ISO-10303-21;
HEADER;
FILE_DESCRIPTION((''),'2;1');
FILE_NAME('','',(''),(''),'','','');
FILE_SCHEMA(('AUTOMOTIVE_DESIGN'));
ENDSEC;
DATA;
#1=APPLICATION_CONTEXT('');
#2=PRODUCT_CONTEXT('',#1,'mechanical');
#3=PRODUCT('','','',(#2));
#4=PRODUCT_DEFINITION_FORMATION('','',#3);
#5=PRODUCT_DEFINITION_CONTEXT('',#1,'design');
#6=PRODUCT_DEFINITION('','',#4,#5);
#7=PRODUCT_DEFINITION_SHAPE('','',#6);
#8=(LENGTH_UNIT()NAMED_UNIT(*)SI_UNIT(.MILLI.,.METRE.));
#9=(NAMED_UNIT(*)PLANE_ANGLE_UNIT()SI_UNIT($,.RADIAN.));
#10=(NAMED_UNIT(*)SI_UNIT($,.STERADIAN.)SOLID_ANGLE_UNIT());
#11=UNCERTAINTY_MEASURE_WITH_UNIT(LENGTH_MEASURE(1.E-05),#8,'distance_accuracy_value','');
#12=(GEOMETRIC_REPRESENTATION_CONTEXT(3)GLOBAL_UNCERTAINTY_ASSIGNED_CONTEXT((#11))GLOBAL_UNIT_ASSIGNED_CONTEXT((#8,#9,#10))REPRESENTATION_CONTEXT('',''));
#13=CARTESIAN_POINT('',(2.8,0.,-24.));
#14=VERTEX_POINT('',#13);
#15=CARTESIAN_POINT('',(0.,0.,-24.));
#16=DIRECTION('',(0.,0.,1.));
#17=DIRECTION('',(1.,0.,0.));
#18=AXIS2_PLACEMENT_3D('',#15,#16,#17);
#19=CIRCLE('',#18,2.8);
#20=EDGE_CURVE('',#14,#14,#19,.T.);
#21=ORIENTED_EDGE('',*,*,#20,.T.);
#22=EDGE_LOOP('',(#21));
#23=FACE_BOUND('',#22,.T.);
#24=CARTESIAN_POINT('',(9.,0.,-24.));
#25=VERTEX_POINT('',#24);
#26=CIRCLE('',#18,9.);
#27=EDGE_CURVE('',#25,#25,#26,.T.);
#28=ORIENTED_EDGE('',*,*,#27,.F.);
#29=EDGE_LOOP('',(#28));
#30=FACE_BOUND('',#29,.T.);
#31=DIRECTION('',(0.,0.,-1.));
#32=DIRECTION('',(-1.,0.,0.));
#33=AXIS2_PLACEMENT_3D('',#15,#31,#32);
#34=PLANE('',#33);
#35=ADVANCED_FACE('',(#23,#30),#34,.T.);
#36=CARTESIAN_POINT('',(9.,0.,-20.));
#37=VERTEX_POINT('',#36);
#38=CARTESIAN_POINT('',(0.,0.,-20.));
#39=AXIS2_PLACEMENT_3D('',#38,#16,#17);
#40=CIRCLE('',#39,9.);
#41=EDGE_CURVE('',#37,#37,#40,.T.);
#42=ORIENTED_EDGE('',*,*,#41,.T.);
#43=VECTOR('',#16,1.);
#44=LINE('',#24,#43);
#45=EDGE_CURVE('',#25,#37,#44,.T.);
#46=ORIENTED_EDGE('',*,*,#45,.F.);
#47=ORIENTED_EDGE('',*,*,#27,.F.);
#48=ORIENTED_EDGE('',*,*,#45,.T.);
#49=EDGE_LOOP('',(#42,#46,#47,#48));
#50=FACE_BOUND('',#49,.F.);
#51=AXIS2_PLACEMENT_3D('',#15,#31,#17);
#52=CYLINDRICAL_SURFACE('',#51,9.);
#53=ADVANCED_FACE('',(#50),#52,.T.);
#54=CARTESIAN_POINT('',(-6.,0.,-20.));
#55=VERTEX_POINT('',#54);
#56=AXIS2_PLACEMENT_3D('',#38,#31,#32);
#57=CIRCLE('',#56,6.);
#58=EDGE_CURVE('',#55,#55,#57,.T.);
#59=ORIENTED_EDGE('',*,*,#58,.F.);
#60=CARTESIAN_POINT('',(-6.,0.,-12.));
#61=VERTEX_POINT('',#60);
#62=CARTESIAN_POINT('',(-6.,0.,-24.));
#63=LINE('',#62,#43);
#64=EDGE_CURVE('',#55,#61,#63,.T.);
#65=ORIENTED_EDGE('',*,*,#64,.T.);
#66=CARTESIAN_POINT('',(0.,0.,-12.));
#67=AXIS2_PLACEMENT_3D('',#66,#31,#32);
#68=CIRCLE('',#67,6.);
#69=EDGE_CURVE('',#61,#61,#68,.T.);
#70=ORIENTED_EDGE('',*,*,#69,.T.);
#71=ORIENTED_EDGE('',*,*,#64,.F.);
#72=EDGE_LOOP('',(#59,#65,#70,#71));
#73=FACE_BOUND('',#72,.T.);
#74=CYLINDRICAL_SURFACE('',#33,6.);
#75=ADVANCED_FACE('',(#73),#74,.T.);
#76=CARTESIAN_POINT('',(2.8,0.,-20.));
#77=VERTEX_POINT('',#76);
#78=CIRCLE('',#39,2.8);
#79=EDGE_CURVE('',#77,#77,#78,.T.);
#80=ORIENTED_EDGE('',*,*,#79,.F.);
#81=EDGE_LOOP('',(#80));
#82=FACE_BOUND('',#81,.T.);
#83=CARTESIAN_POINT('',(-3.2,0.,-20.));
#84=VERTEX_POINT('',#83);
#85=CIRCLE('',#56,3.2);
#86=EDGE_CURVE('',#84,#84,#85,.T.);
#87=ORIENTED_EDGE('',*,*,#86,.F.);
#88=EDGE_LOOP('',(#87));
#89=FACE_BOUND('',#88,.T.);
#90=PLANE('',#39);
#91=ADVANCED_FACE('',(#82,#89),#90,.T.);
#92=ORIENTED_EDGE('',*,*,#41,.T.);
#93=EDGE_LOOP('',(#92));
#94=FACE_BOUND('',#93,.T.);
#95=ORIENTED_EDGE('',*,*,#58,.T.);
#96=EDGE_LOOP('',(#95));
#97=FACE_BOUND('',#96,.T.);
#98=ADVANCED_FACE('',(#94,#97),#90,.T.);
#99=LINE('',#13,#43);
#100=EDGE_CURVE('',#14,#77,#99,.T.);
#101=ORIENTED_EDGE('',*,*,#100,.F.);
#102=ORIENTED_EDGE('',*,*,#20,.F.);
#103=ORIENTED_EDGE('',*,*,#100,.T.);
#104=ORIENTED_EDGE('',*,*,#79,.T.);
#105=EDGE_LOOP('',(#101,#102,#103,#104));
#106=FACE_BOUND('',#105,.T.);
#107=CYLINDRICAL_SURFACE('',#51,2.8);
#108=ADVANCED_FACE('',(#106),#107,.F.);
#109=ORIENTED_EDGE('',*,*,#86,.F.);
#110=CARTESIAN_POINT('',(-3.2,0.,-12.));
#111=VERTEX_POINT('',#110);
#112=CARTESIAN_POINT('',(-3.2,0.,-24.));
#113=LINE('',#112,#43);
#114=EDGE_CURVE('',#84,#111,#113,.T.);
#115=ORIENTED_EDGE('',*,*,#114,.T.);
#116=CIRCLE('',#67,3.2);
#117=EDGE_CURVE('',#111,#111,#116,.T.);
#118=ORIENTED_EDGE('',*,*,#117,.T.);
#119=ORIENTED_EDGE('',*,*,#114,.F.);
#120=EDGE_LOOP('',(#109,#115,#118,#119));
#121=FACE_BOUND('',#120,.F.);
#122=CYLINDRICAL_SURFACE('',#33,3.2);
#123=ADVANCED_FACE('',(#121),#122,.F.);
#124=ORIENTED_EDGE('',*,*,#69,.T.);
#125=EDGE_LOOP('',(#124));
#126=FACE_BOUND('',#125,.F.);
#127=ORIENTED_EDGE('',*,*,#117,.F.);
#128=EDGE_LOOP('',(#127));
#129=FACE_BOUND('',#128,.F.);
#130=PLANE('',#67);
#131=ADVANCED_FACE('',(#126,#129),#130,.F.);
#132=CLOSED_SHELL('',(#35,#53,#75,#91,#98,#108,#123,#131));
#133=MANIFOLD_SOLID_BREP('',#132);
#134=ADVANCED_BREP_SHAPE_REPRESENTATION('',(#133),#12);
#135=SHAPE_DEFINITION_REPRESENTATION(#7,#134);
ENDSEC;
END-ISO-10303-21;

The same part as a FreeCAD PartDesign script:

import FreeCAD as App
import Part
import Sketcher

V = App.Vector

doc = App.newDocument("Part")
body = doc.addObject("PartDesign::Body", "Body")

sketch1 = body.newObject("Sketcher::SketchObject", "Sketch")
sketch1.AttachmentSupport = (doc.getObject("XY_Plane"), [""])
sketch1.MapMode = "FlatFace"
sketch1.AttachmentOffset = App.Placement(V(0, 0, -24), App.Rotation())
sketch1.addGeometry([
    Part.Circle(V(0, 0, 0), V(0, 0, 1), 9),
    Part.Circle(V(0, 0, 0), V(0, 0, 1), 2.8),
], False)
sketch1.addConstraint([
    Sketcher.Constraint("Coincident", 0, 3, -1, 1),
    Sketcher.Constraint("Coincident", 1, 3, -1, 1),
    Sketcher.Constraint("Diameter", 0, 18.0),
    Sketcher.Constraint("Diameter", 1, 5.6),
])
pad1 = body.newObject("PartDesign::Pad", "Pad")
pad1.Profile = sketch1
pad1.Length = 4

sketch2 = body.newObject("Sketcher::SketchObject", "Sketch001")
sketch2.AttachmentSupport = (doc.getObject("XY_Plane"), [""])
sketch2.MapMode = "FlatFace"
sketch2.AttachmentOffset = App.Placement(V(0, 0, -24), App.Rotation())
sketch2.addGeometry([
    Part.Circle(V(0, 0, 0), V(0, 0, 1), 6),
    Part.Circle(V(0, 0, 0), V(0, 0, 1), 3.2),
], False)
sketch2.addConstraint([
    Sketcher.Constraint("Coincident", 0, 3, -1, 1),
    Sketcher.Constraint("Coincident", 1, 3, -1, 1),
    Sketcher.Constraint("Diameter", 0, 12.0),
    Sketcher.Constraint("Diameter", 1, 6.4),
])
pad2 = body.newObject("PartDesign::Pad", "Pad001")
pad2.Profile = sketch2
pad2.Length = 12

doc.recompute()
